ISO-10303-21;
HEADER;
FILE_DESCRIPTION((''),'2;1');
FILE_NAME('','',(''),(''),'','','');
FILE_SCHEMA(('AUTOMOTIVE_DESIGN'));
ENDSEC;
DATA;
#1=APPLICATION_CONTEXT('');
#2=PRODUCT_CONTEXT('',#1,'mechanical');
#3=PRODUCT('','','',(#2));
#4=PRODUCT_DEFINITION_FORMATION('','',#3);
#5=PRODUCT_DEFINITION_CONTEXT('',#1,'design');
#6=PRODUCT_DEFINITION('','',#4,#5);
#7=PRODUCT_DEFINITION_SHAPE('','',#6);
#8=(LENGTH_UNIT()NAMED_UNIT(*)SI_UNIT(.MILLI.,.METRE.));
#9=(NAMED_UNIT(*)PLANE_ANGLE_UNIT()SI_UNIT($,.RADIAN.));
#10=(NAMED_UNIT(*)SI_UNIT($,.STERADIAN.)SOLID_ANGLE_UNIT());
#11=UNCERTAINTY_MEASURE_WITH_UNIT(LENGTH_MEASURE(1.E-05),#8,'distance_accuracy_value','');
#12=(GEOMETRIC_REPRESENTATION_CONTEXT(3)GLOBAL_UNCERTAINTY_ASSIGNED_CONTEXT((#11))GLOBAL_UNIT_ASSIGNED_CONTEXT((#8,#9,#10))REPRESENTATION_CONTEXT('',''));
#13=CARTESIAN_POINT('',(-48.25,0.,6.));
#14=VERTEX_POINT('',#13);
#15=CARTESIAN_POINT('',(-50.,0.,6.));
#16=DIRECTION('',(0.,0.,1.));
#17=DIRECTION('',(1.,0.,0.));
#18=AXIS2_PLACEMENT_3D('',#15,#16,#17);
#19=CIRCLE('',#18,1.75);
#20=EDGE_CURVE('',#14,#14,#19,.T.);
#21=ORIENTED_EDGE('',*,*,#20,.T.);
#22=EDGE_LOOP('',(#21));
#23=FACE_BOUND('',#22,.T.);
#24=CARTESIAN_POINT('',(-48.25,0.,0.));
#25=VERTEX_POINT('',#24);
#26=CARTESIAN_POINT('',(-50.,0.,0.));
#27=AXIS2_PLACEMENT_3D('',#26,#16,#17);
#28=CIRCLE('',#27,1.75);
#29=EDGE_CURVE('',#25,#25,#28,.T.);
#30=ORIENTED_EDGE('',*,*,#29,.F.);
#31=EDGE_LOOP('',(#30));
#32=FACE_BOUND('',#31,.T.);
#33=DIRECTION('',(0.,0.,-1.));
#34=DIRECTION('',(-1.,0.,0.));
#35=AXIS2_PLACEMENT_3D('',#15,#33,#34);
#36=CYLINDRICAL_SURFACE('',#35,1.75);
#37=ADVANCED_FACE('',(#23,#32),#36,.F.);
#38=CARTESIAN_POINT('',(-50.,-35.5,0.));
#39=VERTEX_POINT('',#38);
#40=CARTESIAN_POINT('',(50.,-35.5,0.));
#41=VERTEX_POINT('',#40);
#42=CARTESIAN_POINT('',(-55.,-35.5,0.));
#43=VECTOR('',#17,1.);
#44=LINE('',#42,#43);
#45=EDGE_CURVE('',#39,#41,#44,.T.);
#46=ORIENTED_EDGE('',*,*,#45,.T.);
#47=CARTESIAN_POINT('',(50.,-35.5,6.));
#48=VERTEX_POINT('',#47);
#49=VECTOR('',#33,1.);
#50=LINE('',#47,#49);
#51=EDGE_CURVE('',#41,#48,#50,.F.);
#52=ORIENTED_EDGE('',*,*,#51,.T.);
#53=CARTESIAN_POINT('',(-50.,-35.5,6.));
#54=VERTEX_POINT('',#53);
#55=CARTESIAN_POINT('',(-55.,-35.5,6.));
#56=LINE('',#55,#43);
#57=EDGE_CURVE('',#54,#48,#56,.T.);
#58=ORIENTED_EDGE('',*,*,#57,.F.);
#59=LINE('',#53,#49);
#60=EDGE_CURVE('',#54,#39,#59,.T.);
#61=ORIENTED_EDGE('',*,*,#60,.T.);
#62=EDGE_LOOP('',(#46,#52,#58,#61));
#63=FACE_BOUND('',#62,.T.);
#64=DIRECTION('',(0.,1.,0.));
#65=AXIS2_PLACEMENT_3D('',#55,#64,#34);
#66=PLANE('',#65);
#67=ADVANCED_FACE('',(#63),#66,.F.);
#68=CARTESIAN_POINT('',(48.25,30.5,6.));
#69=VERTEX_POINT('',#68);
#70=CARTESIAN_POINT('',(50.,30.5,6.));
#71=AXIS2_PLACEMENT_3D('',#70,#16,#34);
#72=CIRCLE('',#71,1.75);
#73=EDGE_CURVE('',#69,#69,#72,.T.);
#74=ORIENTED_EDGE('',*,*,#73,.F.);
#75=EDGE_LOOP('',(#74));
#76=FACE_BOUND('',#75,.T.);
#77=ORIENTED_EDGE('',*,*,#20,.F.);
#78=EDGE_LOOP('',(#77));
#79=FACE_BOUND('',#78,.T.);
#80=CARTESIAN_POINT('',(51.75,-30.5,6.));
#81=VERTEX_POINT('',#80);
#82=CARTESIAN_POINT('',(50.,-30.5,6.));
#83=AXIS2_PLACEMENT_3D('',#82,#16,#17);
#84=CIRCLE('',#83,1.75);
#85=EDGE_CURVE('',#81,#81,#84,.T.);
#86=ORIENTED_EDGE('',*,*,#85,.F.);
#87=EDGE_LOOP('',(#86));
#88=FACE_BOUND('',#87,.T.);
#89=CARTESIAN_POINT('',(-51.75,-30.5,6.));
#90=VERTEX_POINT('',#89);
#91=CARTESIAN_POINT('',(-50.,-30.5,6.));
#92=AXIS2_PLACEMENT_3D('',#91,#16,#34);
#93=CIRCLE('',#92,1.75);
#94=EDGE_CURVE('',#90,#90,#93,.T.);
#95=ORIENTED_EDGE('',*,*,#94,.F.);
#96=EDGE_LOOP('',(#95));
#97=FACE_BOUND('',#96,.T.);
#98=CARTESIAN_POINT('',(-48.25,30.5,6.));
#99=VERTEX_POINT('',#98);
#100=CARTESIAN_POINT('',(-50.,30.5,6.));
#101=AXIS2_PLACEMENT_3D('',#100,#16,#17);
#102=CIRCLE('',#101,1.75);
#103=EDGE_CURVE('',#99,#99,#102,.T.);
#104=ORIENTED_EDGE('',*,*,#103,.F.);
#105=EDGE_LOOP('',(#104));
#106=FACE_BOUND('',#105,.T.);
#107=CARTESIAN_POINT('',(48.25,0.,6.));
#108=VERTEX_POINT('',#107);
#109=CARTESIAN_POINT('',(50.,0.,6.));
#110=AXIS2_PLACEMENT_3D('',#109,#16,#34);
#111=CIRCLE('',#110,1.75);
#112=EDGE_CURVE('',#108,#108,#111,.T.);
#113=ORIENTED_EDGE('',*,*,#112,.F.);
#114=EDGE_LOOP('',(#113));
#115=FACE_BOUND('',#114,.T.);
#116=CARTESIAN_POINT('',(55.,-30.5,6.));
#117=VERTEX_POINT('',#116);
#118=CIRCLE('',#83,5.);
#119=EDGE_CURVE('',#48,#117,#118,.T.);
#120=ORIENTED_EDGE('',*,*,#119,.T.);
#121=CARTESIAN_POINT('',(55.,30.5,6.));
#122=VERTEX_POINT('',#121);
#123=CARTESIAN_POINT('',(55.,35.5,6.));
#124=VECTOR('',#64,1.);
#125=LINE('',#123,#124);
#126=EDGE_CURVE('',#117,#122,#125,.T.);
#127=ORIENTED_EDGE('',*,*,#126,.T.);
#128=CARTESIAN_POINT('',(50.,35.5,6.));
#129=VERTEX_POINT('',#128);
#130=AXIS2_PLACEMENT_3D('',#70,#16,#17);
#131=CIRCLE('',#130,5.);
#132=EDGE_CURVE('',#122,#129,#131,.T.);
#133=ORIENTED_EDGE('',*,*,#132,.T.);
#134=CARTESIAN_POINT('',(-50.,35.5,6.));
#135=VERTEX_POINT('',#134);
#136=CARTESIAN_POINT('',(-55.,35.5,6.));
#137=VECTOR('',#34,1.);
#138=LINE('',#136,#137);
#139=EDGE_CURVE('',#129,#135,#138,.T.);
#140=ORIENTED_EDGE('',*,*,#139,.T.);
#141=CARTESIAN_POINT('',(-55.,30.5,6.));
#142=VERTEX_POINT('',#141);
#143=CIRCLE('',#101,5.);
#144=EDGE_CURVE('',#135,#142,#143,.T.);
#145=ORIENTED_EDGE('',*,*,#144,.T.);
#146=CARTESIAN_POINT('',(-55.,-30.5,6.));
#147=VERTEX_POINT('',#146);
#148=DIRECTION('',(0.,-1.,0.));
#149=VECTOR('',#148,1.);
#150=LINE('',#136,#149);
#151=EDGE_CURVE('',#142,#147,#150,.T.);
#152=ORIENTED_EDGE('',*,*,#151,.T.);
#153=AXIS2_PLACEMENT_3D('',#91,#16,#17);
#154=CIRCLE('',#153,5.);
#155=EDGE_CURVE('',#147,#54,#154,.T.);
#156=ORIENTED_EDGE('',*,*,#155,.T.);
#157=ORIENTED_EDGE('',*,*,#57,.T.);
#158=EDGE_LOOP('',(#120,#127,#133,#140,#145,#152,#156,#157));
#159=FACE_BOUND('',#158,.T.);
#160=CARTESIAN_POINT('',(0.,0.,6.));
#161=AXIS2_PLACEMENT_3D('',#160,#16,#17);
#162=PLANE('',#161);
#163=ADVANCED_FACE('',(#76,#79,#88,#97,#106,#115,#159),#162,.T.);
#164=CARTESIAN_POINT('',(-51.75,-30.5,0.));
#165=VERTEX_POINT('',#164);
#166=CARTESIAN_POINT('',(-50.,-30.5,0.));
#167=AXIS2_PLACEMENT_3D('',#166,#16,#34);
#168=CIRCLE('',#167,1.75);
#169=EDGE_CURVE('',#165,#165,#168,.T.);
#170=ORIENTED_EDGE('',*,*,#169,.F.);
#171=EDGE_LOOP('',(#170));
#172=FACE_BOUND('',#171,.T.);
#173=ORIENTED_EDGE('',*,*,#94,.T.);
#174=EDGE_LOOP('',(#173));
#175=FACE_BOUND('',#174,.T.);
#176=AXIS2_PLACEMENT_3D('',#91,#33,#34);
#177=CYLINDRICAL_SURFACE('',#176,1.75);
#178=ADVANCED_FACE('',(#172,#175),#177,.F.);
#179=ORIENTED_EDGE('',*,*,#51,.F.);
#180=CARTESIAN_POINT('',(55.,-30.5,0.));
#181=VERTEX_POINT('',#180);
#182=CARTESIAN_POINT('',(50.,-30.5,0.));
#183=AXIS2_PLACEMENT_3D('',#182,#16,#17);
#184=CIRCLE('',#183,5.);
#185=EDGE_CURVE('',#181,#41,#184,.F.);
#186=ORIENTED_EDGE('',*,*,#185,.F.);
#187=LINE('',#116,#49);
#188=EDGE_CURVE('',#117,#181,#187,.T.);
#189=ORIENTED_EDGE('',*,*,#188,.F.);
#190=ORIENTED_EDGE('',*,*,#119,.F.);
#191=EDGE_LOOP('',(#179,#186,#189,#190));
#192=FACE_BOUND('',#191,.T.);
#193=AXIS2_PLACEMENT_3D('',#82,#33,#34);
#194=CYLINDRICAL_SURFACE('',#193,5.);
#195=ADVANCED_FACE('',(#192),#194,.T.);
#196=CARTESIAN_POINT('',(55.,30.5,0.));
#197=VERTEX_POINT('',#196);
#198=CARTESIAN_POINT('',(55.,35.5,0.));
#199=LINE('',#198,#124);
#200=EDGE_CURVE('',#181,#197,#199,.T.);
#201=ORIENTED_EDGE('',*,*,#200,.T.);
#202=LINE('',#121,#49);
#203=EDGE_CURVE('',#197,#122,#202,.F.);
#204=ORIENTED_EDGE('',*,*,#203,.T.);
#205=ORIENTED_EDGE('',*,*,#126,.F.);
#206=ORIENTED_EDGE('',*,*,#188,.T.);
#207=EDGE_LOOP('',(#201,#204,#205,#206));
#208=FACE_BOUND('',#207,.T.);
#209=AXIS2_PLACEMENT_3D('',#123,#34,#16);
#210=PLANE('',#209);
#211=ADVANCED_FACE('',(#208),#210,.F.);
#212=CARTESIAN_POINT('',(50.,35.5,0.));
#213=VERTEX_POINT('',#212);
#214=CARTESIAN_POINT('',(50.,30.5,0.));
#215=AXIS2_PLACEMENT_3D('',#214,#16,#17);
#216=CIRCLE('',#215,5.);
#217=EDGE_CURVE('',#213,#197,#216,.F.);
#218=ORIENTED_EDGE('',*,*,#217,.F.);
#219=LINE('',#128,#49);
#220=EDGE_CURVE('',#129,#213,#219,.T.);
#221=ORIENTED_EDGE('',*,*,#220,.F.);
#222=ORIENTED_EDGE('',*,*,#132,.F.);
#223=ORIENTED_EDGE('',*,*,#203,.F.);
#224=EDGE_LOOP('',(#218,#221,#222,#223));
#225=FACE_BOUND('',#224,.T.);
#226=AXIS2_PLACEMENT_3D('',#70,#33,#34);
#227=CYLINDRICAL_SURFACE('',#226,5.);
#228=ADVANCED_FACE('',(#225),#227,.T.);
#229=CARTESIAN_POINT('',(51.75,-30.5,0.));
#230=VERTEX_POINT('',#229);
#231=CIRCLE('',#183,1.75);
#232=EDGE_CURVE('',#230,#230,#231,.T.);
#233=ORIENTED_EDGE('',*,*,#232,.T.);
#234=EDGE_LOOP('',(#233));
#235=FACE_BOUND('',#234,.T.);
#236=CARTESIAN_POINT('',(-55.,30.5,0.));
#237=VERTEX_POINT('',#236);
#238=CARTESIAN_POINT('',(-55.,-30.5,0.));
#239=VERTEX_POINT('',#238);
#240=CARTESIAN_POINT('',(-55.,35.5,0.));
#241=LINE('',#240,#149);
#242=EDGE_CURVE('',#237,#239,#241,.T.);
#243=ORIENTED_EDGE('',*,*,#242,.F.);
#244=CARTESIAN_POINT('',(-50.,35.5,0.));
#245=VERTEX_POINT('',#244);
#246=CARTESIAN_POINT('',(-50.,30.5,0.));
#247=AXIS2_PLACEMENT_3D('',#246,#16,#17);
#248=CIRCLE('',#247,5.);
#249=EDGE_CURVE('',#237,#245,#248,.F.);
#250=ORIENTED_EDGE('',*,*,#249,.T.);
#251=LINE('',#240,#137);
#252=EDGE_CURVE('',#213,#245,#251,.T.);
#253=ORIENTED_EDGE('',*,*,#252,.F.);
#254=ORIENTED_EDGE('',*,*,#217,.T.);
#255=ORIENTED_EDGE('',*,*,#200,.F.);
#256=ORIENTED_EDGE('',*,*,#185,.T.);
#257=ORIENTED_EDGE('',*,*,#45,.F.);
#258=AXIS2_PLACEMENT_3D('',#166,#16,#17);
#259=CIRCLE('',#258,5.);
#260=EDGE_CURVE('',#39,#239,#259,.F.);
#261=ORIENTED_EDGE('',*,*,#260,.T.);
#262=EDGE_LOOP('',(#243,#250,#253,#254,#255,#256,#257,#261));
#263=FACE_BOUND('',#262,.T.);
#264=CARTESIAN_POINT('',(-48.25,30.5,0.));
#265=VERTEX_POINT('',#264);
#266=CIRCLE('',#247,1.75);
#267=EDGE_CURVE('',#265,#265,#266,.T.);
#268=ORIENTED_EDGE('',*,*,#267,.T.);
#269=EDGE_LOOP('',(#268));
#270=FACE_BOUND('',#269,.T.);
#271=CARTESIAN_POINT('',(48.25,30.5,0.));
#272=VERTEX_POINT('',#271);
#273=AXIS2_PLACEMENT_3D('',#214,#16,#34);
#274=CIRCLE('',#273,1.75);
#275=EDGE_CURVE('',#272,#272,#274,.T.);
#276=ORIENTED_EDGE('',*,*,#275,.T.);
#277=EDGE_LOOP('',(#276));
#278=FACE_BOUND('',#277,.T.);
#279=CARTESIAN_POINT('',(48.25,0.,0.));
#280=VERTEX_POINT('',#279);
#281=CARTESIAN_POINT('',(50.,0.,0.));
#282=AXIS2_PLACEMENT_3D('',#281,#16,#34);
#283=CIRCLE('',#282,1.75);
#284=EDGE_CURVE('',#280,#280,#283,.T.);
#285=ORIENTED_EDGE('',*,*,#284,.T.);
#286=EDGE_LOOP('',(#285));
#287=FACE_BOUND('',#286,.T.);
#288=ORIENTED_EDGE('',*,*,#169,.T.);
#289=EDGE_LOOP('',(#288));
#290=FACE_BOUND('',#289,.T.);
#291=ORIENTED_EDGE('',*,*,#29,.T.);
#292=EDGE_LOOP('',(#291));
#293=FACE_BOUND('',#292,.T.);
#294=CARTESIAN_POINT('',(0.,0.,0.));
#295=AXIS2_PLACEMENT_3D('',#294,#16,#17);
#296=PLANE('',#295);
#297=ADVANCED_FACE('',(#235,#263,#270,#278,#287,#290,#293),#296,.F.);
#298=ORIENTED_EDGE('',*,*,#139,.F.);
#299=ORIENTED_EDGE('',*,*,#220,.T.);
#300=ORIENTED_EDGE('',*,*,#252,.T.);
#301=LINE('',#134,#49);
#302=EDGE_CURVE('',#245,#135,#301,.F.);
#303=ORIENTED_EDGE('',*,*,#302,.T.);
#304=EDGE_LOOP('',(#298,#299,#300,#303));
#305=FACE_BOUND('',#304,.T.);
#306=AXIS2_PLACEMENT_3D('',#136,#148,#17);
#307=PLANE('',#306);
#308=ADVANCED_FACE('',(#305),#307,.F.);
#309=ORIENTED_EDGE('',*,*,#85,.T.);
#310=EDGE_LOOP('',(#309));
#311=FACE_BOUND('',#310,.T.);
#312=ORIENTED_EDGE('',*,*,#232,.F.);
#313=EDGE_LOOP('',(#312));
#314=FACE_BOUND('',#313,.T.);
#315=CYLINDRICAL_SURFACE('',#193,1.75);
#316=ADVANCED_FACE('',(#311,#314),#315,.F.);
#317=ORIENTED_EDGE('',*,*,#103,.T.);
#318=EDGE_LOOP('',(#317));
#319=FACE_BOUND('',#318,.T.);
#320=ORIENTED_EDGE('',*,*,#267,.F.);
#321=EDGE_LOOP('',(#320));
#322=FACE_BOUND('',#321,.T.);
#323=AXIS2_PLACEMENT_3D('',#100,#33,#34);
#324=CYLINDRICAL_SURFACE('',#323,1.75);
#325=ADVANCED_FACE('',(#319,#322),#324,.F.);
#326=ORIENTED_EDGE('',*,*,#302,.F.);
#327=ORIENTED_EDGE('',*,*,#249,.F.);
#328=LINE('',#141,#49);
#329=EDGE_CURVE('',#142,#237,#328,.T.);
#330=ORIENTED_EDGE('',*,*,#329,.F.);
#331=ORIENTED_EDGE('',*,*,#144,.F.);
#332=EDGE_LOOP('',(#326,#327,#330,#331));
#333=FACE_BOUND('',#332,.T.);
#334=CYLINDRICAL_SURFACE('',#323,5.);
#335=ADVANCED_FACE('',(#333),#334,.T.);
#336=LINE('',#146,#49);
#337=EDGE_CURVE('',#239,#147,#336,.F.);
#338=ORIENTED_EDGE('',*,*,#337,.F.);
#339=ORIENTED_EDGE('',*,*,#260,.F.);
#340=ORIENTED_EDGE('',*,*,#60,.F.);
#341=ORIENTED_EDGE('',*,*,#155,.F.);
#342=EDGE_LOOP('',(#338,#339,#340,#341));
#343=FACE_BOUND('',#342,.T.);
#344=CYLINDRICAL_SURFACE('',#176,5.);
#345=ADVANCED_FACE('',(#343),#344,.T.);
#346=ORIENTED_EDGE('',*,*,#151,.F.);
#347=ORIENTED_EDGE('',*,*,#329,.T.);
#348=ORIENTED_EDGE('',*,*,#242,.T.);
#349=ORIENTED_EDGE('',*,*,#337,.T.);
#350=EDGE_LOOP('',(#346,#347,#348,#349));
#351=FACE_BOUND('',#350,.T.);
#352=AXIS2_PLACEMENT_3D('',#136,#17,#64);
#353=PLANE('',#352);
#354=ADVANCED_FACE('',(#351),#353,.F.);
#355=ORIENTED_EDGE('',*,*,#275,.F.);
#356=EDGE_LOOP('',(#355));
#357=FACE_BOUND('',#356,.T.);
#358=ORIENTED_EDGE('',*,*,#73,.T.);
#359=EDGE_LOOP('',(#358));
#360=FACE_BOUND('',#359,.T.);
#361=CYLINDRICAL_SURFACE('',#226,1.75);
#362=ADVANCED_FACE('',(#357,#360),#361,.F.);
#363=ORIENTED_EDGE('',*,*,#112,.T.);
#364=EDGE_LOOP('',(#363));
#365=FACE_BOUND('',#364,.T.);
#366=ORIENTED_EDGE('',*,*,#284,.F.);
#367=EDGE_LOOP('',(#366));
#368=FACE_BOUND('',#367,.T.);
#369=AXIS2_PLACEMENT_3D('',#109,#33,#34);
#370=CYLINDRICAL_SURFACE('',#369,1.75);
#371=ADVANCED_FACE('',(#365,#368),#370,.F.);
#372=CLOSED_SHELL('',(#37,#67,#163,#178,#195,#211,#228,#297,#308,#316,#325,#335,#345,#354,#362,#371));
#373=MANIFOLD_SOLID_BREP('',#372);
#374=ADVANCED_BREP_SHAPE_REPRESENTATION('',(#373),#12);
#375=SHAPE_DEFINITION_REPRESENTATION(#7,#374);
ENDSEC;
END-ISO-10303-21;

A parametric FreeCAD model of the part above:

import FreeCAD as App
import Part
import Sketcher
Q = App.Units.Quantity


def edges_at(feature, points):
    """Names of the edges that pass closest to the given points."""
    edges = feature.Shape.Edges
    near = lambda p: min(range(len(edges)), key=lambda i: edges[i].distToShape(Part.Vertex(*p))[0])
    return sorted({f"Edge{near(p) + 1}" for p in points})

doc = App.newDocument("Part")
params = doc.addObject("Spreadsheet::Sheet", "Params")
for row, (alias, value) in enumerate([
    ("sketch1_diameter", "3.5 mm"),
    ("sketch1_width", "110 mm"),
    ("sketch1_height", "71 mm"),
    ("pad1_length", "6 mm"),
    ("fillet_radius", "5 mm"),
], start=1):
    params.set(f"A{row}", alias)
    params.set(f"B{row}", "=" + value)
    params.setAlias(f"B{row}", alias)

body = doc.addObject("PartDesign::Body", "Body")

sketch1 = body.newObject("Sketcher::SketchObject", "Sketch")
sketch1.AttachmentSupport = (doc.getObject("XY_Plane"), [""])
sketch1.MapMode = "FlatFace"
sketch1.addGeometry([
    Part.LineSegment(App.Vector(-55, 35.5, 0), App.Vector(-55, -35.5, 0)),
    Part.LineSegment(App.Vector(-55, -35.5, 0), App.Vector(55, -35.5, 0)),
    Part.LineSegment(App.Vector(55, -35.5, 0), App.Vector(55, 35.5, 0)),
    Part.LineSegment(App.Vector(55, 35.5, 0), App.Vector(-55, 35.5, 0)),
    Part.Circle(App.Vector(-50, -30.5, 0), App.Vector(0, 0, 1), 1.8),
    Part.Circle(App.Vector(50, -30.5, 0), App.Vector(0, 0, 1), 1.8),
    Part.Circle(App.Vector(-50, 0, 0), App.Vector(0, 0, 1), 1.8),
    Part.Circle(App.Vector(-50, 30.5, 0), App.Vector(0, 0, 1), 1.8),
    Part.Circle(App.Vector(50, 0, 0), App.Vector(0, 0, 1), 1.8),
    Part.Circle(App.Vector(50, 30.5, 0), App.Vector(0, 0, 1), 1.8),
], False)
sketch1.addConstraint([
    Sketcher.Constraint("Coincident", 0, 2, 1, 1),
    Sketcher.Constraint("Coincident", 1, 2, 2, 1),
    Sketcher.Constraint("Coincident", 2, 2, 3, 1),
    Sketcher.Constraint("Coincident", 3, 2, 0, 1),
    Sketcher.Constraint("Vertical", 0),
    Sketcher.Constraint("Horizontal", 1),
    Sketcher.Constraint("Vertical", 2),
    Sketcher.Constraint("Horizontal", 3),
    Sketcher.Constraint("Equal", 4, 5),
    Sketcher.Constraint("Equal", 5, 6),
    Sketcher.Constraint("Equal", 6, 7),
    Sketcher.Constraint("Equal", 7, 8),
    Sketcher.Constraint("Equal", 8, 9),
    Sketcher.Constraint("Symmetric", 5, 3, 7, 3, -1, 1),
    Sketcher.Constraint("Symmetric", 6, 3, 8, 3, -1, 1),
    Sketcher.Constraint("Symmetric", 4, 3, 9, 3, -1, 1),
    Sketcher.Constraint("Symmetric", 0, 2, 2, 2, -1, 1),
    Sketcher.Constraint("Symmetric", 4, 3, 5, 3, -2),
    Sketcher.Constraint("PointOnObject", 6, 3, -1),
    Sketcher.Constraint("Vertical", 4, 3, 6, 3),
    Sketcher.Constraint("Diameter", 4, Q("3.5 mm")),
    Sketcher.Constraint("DistanceX", 1, 1, 1, 2, Q("110 mm")),
    Sketcher.Constraint("DistanceY", 0, 2, 0, 1, Q("71 mm")),
    Sketcher.Constraint("DistanceX", 4, 3, -1, 1, Q("50 mm")),
    Sketcher.Constraint("DistanceY", 4, 3, 7, 3, Q("61 mm")),
])
sketch1.setExpression("Constraints[20]", "Params.sketch1_diameter")
sketch1.setExpression("Constraints[21]", "Params.sketch1_width")
sketch1.setExpression("Constraints[22]", "Params.sketch1_height")
pad1 = body.newObject("PartDesign::Pad", "Pad")
pad1.Profile = sketch1
pad1.setExpression("Length", "Params.pad1_length")
doc.recompute()

fillet = body.newObject("PartDesign::Fillet", "Fillet")
fillet.Base = (pad1, edges_at(pad1, [
    (-55, 35.5, 3),
    (55, 35.5, 3),
    (55, -35.5, 3),
    (-55, -35.5, 3),
]))
fillet.setExpression("Radius", "Params.fillet_radius")

doc.recompute()
